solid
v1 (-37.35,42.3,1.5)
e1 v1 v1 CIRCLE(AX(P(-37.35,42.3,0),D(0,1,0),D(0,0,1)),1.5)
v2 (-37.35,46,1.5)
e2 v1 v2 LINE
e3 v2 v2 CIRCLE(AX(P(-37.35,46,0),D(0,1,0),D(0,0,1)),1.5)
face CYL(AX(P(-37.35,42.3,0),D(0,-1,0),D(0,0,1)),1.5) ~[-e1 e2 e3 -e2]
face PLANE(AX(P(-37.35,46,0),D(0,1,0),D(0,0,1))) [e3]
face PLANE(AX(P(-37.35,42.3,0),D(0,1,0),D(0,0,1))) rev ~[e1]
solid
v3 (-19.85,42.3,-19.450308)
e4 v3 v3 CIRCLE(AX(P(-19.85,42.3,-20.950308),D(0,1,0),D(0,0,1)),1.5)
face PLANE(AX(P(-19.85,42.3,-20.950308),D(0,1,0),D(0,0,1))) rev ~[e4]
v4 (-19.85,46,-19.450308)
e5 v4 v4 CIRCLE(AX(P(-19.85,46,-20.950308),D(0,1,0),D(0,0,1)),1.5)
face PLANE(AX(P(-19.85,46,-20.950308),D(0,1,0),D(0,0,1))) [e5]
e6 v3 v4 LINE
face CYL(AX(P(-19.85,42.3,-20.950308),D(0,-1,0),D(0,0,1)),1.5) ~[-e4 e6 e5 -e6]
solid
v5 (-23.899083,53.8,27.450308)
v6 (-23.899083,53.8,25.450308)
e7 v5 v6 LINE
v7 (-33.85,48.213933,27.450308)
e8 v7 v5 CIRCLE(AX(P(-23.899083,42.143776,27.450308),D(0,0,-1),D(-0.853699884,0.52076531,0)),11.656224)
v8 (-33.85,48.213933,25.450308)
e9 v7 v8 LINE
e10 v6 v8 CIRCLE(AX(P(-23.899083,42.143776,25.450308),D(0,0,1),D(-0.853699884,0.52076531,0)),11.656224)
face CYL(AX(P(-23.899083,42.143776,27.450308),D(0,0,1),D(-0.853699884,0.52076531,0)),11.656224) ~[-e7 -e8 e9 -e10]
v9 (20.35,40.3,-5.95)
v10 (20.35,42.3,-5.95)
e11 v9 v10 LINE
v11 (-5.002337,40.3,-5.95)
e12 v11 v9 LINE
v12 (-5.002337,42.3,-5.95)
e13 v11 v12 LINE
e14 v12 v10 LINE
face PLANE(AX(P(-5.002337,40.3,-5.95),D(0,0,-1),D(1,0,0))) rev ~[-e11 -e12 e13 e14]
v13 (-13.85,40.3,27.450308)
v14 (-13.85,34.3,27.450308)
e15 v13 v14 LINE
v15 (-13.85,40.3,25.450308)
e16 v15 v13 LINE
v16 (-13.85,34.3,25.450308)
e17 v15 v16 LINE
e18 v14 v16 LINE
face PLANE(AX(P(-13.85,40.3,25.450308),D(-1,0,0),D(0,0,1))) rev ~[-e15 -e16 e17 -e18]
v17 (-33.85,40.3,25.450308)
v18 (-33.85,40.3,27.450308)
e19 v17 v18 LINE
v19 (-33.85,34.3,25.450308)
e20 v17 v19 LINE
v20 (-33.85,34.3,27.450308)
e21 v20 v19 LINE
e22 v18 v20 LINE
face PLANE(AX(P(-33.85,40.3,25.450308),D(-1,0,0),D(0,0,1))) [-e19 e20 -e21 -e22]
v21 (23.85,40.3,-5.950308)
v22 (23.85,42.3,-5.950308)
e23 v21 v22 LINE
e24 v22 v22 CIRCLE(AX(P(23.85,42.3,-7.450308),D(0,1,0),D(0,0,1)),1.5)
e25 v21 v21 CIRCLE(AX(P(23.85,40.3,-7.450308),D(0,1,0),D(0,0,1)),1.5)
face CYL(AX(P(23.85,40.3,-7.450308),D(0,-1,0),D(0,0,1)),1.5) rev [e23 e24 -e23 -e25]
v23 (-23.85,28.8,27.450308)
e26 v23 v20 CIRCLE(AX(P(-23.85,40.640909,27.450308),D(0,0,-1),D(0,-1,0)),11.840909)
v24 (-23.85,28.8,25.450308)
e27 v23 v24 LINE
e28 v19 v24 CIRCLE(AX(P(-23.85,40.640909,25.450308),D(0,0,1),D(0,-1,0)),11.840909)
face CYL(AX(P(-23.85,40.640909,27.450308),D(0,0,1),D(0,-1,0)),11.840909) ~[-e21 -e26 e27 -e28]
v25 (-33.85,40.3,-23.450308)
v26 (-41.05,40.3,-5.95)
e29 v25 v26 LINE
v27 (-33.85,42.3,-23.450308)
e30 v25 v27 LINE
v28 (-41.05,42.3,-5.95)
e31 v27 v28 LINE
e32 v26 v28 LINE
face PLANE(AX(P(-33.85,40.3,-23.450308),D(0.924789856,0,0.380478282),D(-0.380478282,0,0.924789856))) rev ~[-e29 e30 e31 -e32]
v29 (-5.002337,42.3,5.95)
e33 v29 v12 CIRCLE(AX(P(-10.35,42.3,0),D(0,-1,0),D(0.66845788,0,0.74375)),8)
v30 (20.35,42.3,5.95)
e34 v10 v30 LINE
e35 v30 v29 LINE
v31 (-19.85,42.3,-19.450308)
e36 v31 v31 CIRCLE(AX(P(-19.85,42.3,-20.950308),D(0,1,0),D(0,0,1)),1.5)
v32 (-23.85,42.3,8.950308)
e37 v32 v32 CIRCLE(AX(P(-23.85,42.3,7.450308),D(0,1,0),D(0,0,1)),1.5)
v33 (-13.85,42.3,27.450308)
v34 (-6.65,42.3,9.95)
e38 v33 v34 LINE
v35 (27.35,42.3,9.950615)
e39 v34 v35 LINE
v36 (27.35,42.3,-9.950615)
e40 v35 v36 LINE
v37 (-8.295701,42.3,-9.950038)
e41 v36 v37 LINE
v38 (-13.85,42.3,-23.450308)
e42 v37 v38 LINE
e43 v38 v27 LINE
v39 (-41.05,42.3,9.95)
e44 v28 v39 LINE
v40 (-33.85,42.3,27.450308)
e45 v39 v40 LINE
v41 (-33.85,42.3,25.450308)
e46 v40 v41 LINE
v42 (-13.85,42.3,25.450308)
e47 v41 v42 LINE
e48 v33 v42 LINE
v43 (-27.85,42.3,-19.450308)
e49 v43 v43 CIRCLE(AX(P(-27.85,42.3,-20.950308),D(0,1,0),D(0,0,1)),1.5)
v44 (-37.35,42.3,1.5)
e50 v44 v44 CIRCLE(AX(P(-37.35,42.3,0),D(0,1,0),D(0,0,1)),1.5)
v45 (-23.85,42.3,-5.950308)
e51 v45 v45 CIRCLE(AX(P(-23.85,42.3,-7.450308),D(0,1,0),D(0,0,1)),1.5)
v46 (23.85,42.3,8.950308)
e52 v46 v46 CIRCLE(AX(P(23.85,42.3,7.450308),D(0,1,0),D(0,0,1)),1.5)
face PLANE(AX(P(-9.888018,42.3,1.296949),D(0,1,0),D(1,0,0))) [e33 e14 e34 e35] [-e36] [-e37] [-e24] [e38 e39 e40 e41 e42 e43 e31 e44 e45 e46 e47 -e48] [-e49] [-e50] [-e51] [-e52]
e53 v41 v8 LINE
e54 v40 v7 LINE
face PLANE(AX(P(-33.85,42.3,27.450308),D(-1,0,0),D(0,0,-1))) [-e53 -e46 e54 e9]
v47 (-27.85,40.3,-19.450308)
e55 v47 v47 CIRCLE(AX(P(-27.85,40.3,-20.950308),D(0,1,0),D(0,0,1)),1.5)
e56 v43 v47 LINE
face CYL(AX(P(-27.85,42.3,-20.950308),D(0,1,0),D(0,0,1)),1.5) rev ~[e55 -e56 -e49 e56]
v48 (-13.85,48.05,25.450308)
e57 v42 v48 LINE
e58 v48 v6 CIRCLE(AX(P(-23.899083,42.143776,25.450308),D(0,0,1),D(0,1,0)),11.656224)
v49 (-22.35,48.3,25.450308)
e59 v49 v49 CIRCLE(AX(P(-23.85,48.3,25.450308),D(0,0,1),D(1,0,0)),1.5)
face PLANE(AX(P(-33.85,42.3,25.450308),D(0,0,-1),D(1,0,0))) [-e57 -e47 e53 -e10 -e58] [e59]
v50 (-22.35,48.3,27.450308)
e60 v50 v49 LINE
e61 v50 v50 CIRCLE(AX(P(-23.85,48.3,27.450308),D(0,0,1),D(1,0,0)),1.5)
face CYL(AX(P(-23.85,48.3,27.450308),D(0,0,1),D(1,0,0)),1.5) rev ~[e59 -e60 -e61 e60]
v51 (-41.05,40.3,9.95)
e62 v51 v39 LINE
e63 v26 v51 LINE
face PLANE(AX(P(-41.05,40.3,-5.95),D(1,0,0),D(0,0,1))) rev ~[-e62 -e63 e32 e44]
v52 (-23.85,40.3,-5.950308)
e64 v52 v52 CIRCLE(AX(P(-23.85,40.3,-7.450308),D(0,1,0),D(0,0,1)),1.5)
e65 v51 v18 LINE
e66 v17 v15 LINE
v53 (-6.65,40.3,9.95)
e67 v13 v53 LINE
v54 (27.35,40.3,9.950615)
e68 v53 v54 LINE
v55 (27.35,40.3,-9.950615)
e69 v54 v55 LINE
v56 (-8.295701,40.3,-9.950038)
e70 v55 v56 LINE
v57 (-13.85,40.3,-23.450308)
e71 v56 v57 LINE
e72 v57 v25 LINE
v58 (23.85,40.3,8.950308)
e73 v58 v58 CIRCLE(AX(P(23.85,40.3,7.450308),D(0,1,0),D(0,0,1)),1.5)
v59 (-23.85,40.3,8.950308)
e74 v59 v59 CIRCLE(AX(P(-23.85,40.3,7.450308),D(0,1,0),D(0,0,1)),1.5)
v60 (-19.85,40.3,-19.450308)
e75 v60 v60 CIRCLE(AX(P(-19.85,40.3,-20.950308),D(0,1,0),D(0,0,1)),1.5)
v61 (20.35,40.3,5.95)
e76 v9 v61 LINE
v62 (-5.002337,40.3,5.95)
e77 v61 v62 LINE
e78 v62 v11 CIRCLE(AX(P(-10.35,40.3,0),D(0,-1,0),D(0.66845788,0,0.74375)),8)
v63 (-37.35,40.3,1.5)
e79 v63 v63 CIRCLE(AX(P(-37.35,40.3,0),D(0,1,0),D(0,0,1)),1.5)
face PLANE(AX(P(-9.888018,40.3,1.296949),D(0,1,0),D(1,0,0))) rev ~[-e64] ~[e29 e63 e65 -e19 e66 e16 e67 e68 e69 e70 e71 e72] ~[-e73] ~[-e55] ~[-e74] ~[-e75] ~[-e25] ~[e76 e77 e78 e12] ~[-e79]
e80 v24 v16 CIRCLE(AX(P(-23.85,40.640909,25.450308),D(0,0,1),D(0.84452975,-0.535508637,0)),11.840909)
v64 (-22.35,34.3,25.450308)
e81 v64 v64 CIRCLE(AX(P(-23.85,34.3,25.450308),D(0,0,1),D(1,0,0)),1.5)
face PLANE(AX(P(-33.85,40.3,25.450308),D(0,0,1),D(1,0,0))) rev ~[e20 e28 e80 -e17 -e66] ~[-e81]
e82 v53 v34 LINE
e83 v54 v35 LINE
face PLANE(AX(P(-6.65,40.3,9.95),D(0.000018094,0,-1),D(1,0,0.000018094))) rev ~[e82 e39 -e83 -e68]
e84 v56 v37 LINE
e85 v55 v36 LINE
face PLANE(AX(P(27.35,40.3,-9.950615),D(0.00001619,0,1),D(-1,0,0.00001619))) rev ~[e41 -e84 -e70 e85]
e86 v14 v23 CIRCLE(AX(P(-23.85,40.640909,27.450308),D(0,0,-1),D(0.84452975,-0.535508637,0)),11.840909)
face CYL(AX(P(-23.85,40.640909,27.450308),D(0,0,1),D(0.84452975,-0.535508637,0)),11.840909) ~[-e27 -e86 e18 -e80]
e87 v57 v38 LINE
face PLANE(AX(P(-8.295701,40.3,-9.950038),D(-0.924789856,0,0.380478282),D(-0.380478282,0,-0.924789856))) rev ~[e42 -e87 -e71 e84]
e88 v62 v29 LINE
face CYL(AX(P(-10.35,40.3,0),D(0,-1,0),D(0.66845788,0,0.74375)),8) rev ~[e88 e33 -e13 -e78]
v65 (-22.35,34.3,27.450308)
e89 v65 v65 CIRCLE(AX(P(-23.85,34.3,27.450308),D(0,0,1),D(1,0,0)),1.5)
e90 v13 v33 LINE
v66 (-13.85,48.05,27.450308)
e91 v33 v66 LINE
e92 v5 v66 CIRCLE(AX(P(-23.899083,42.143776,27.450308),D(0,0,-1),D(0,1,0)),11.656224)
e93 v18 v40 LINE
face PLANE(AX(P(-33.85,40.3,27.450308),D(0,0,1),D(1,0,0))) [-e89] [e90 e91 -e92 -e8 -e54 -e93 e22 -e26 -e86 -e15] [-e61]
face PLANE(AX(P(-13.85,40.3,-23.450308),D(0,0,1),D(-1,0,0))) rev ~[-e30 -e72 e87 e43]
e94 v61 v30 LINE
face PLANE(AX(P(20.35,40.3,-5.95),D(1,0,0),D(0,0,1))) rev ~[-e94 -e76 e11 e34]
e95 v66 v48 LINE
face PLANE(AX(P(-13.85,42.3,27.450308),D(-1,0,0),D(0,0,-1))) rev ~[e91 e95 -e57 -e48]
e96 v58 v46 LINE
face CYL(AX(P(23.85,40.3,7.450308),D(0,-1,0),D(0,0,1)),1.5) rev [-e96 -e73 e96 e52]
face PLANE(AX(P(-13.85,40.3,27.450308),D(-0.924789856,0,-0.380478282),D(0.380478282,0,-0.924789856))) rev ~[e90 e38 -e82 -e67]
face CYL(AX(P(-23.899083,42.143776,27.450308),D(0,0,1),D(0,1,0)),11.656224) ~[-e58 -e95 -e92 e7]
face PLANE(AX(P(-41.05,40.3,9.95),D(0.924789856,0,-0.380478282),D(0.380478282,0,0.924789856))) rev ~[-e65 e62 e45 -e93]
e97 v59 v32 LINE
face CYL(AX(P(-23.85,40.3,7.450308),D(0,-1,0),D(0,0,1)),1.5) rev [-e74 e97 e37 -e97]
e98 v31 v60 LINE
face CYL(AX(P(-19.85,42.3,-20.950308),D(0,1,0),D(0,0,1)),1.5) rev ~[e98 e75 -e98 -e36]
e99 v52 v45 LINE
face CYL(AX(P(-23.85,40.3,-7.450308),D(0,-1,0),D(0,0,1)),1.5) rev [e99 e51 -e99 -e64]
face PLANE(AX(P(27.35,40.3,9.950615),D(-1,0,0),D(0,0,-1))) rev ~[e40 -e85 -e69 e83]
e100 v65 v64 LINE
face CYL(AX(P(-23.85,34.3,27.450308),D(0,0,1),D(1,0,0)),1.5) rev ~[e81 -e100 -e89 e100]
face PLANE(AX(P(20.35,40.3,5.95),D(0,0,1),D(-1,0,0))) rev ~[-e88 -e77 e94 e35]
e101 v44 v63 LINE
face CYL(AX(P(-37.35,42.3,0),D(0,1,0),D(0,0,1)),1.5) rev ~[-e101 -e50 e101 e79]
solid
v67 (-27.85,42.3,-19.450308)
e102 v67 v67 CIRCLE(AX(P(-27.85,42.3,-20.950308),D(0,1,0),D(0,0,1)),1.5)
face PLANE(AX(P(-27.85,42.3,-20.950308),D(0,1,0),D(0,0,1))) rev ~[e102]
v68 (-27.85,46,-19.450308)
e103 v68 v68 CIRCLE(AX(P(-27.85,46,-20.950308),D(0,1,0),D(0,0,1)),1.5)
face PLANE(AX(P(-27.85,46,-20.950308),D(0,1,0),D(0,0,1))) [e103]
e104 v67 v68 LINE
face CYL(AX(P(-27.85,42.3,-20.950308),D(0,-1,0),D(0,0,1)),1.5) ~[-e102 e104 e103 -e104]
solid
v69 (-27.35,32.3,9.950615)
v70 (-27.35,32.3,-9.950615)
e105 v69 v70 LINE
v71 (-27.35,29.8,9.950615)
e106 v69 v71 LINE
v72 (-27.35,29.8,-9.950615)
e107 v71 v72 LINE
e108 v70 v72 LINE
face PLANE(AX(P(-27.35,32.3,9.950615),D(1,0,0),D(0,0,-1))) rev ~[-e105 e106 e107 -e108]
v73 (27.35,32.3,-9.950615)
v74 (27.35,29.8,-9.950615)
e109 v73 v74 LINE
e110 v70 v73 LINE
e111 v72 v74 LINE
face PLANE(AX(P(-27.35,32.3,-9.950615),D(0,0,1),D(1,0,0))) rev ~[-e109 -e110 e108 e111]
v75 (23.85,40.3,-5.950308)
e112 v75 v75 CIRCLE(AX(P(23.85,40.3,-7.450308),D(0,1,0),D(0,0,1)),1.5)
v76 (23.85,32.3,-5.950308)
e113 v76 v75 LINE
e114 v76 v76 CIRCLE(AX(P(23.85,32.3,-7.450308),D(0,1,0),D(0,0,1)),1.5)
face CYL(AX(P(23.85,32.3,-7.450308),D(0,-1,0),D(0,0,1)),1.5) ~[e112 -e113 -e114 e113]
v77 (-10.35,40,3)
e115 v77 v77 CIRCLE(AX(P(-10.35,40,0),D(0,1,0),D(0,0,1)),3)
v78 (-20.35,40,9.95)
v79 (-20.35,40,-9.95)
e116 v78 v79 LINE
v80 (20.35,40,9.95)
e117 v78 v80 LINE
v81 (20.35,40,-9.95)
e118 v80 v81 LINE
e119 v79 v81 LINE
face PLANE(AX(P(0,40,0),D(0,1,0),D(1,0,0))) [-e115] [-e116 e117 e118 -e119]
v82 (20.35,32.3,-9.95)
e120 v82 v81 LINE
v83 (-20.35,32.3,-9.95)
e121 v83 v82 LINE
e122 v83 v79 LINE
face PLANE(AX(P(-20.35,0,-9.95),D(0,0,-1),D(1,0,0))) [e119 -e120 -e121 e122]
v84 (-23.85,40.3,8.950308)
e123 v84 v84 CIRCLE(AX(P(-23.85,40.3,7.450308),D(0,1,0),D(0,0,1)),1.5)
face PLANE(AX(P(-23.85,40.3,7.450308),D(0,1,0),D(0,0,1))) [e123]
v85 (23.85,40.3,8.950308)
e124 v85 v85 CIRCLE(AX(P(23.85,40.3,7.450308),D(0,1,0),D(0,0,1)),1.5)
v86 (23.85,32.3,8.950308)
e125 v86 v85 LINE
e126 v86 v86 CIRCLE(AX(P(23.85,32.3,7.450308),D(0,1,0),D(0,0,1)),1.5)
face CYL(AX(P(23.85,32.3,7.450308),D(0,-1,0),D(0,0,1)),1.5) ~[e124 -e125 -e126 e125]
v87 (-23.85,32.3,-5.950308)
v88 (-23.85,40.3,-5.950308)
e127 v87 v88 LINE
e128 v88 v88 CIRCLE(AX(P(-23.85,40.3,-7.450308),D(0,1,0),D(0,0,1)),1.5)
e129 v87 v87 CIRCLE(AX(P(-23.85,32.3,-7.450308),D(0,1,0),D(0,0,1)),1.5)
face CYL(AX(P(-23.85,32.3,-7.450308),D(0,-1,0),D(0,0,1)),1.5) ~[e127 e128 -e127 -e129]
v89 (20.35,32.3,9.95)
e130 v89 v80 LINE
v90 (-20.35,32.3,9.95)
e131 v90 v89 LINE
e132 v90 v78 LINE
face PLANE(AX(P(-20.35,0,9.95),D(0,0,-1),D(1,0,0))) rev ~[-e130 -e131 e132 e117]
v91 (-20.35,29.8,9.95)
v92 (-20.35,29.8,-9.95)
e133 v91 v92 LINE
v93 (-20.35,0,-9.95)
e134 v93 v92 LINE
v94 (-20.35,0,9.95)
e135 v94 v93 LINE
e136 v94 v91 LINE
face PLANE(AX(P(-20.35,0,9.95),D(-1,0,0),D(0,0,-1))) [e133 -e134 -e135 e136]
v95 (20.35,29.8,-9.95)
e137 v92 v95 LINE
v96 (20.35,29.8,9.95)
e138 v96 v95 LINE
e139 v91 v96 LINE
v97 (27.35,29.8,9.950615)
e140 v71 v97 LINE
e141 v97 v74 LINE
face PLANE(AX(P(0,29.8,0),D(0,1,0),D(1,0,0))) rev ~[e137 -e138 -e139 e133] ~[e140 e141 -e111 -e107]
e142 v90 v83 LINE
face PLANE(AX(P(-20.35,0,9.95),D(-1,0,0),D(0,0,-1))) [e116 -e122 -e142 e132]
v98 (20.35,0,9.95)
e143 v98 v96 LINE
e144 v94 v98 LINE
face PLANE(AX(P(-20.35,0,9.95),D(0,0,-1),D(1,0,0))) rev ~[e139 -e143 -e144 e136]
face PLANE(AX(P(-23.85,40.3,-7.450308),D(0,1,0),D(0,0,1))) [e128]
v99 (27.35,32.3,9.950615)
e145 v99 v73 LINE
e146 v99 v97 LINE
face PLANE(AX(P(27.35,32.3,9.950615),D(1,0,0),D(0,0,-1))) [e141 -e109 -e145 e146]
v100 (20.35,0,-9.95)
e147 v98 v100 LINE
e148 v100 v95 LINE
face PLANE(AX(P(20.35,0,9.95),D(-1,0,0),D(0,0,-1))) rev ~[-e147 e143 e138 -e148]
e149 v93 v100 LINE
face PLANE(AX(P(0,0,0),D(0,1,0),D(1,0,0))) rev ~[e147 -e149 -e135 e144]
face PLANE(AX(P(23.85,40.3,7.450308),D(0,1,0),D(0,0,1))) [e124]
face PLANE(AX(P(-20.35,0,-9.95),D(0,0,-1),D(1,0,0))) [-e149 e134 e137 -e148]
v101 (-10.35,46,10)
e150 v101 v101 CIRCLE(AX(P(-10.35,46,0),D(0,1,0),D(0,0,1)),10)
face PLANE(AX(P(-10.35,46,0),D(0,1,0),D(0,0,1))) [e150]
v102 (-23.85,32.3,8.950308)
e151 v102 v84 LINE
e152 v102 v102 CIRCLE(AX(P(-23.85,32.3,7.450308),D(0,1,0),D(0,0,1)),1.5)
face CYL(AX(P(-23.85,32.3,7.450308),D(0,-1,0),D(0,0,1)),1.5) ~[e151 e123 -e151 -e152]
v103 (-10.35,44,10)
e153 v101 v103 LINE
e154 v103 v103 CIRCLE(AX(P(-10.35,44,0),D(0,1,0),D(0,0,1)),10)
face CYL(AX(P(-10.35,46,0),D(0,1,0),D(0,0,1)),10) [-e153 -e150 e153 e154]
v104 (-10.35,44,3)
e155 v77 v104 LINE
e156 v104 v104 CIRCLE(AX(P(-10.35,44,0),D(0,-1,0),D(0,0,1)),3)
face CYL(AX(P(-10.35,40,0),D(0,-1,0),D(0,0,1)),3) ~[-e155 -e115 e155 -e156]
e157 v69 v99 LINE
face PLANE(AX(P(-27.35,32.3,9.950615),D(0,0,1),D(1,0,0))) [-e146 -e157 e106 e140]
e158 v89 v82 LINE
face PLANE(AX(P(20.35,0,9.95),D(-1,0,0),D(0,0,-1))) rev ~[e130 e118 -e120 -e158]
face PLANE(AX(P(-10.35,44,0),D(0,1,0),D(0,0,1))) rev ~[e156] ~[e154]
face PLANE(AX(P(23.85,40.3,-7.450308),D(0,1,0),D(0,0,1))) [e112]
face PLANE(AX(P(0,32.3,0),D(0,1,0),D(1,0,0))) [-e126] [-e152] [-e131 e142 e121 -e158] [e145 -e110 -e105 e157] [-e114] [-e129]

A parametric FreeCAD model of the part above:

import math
import FreeCAD as App
import Part
import Sketcher

V = App.Vector


def add_polygon(sketch, points):
    """Adds a closed chain of lines whose ends are joined by coincident constraints."""
    first, n = sketch.GeometryCount, len(points)
    for a, b in zip(points, points[1:] + points[:1]):
        sketch.addGeometry(Part.LineSegment(App.Vector(*a, 0), App.Vector(*b, 0)), False)
    for i in range(n):
        sketch.addConstraint(Sketcher.Constraint("Coincident", first + i, 2, first + (i + 1) % n, 1))

doc = App.newDocument("Part")
params = doc.addObject("Spreadsheet::Sheet", "Params")
for row, (alias, value) in enumerate([
    ("sketch1_width", "40.7 mm"),
    ("sketch1_height", "19.9 mm"),
    ("pad1_length", "40 mm"),
    ("sketch2_diameter", "6 mm"),
    ("pad2_length", "6 mm"),
    ("sketch3_width", "54.7 mm"),
    ("pad3_length", "2.5 mm"),
    ("sketch4_diameter", "20 mm"),
    ("pad4_length", "2 mm"),
    ("sketch5_diameter", "3 mm"),
    ("pad5_length", "8 mm"),
    ("sketch6_diameter", "3 mm"),
    ("sketch6_radius", "8 mm"),
    ("sketch6_width", "20 mm"),
    ("sketch6_length", "34 mm"),
    ("sketch6_height", "15.9 mm"),
    ("pad6_length", "2 mm"),
    ("sketch7_width", "20 mm"),
    ("sketch7_height", "2 mm"),
    ("pad7_length", "11.5 mm"),
    ("sketch8_width", "20 mm"),
    ("sketch8_height", "2 mm"),
    ("pad8_length", "11.5 mm"),
    ("sketch9_diameter", "3 mm"),
    ("pocket1_length", "6.5 mm"),
    ("sketch10_diameter", "3 mm"),
    ("pocket2_length", "6.5 mm"),
    ("sketch11_width", "10 mm"),
    ("sketch11_height", "5.5 mm"),
    ("sketch11_height2", "5.75 mm"),
    ("pocket3_length", "6.5 mm"),
    ("sketch12_diameter", "3 mm"),
    ("pad9_length", "3.7 mm"),
    ("sketch13_diameter", "3 mm"),
    ("pad10_length", "3.7 mm"),
    ("sketch14_diameter", "3 mm"),
    ("pad11_length", "3.7 mm"),
], start=1):
    params.set(f"A{row}", alias)
    params.set(f"B{row}", "=" + value)
    params.setAlias(f"B{row}", alias)

body = doc.addObject("PartDesign::Body", "Body")

# Sketch on XZ plane
sketch1 = body.newObject("Sketcher::SketchObject", "Sketch")
sketch1.AttachmentSupport = (doc.getObject("XZ_Plane"), [""])
sketch1.MapMode = "FlatFace"
add_polygon(sketch1, [(-20, -10), (-20, 10), (20, 10), (20, -10)])  # lines 0-3
sketch1.addConstraint(Sketcher.Constraint("Vertical", 0))
sketch1.addConstraint(Sketcher.Constraint("Horizontal", 1))
sketch1.addConstraint(Sketcher.Constraint("Vertical", 2))
sketch1.addConstraint(Sketcher.Constraint("Horizontal", 3))
sketch1.addConstraint(Sketcher.Constraint("Symmetric", 0, 2, 2, 2, -1, 1))
sketch1.addConstraint(Sketcher.Constraint("DistanceX", 1, 1, 1, 2, 40.7))
sketch1.addConstraint(Sketcher.Constraint("DistanceY", 0, 1, 0, 2, 19.9))
sketch1.setExpression("Constraints[9]", "Params.sketch1_width")
sketch1.setExpression("Constraints[10]", "Params.sketch1_height")
pad1 = body.newObject("PartDesign::Pad", "Pad")
pad1.Profile = sketch1
pad1.setExpression("Length", "Params.pad1_length")
pad1.Reversed = True

# Sketch on XZ plane
sketch2 = body.newObject("Sketcher::SketchObject", "Sketch001")
sketch2.AttachmentSupport = (doc.getObject("XZ_Plane"), [""])
sketch2.MapMode = "FlatFace"
sketch2.AttachmentOffset = App.Placement(V(0, 0, -40), App.Rotation())
sketch2.addGeometry(Part.Circle(V(-10.3, 0, 0), V(0, 0, 1), 3), False)
sketch2.addConstraint(Sketcher.Constraint("PointOnObject", 0, 3, -1))
sketch2.addConstraint(Sketcher.Constraint("Diameter", 0, 6.0))
sketch2.addConstraint(Sketcher.Constraint("DistanceX", 0, 3, -1, 1, 10.35))
sketch2.setExpression("Constraints[1]", "Params.sketch2_diameter")
pad2 = body.newObject("PartDesign::Pad", "Pad001")
pad2.Profile = sketch2
pad2.setExpression("Length", "Params.pad2_length")
pad2.Reversed = True

# Sketch on XZ plane
sketch3 = body.newObject("Sketcher::SketchObject", "Sketch002")
sketch3.AttachmentSupport = (doc.getObject("XZ_Plane"), [""])
sketch3.MapMode = "FlatFace"
sketch3.AttachmentOffset = App.Placement(V(0, 0, -32.3), App.Rotation())
add_polygon(sketch3, [(-27, -10), (-27, 10), (27, 10), (27, -10)])  # lines 0-3
sketch3.addConstraint(Sketcher.Constraint("Vertical", 0))
sketch3.addConstraint(Sketcher.Constraint("Horizontal", 1))
sketch3.addConstraint(Sketcher.Constraint("Vertical", 2))
sketch3.addConstraint(Sketcher.Constraint("Horizontal", 3))
sketch3.addConstraint(Sketcher.Constraint("Symmetric", 0, 2, 2, 2, -1, 1))
sketch3.addConstraint(Sketcher.Constraint("DistanceX", 1, 1, 1, 2, 54.7))
sketch3.addConstraint(Sketcher.Constraint("DistanceY", 0, 1, 0, 2, 19.90123))
sketch3.setExpression("Constraints[9]", "Params.sketch3_width")
pad3 = body.newObject("PartDesign::Pad", "Pad002")
pad3.Profile = sketch3
pad3.setExpression("Length", "Params.pad3_length")

# Sketch on XZ plane
sketch4 = body.newObject("Sketcher::SketchObject", "Sketch003")
sketch4.AttachmentSupport = (doc.getObject("XZ_Plane"), [""])
sketch4.MapMode = "FlatFace"
sketch4.AttachmentOffset = App.Placement(V(0, 0, -46), App.Rotation())
sketch4.addGeometry(Part.Circle(V(-10, 0, 0), V(0, 0, 1), 10), False)
sketch4.addConstraint(Sketcher.Constraint("PointOnObject", 0, 3, -1))
sketch4.addConstraint(Sketcher.Constraint("Diameter", 0, 20.0))
sketch4.addConstraint(Sketcher.Constraint("DistanceX", 0, 3, -1, 1, 10.35))
sketch4.setExpression("Constraints[1]", "Params.sketch4_diameter")
pad4 = body.newObject("PartDesign::Pad", "Pad003")
pad4.Profile = sketch4
pad4.setExpression("Length", "Params.pad4_length")

# Sketch on XZ plane
sketch5 = body.newObject("Sketcher::SketchObject", "Sketch004")
sketch5.AttachmentSupport = (doc.getObject("XZ_Plane"), [""])
sketch5.MapMode = "FlatFace"
sketch5.AttachmentOffset = App.Placement(V(0, 0, -32.3), App.Rotation())
sketch5.addGeometry(Part.Circle(V(23.9, 7.5, 0), V(0, 0, 1), 1.5), False)
sketch5.addGeometry(Part.Circle(V(23.9, -7.5, 0), V(0, 0, 1), 1.5), False)
sketch5.addGeometry(Part.Circle(V(-23.9, 7.5, 0), V(0, 0, 1), 1.5), False)
sketch5.addGeometry(Part.Circle(V(-23.9, -7.5, 0), V(0, 0, 1), 1.5), False)
sketch5.addConstraint(Sketcher.Constraint("Equal", 0, 1))
sketch5.addConstraint(Sketcher.Constraint("Equal", 1, 2))
sketch5.addConstraint(Sketcher.Constraint("Equal", 2, 3))
sketch5.addConstraint(Sketcher.Constraint("Symmetric", 1, 3, 2, 3, -1, 1))
sketch5.addConstraint(Sketcher.Constraint("Symmetric", 0, 3, 3, 3, -1, 1))
sketch5.addConstraint(Sketcher.Constraint("Symmetric", 0, 3, 2, 3, -2))
sketch5.addConstraint(Sketcher.Constraint("Diameter", 0, 3.0))
sketch5.addConstraint(Sketcher.Constraint("DistanceX", 2, 3, 0, 3, 47.7))
sketch5.addConstraint(Sketcher.Constraint("DistanceY", -1, 1, 0, 3, 7.450308))
sketch5.setExpression("Constraints[6]", "Params.sketch5_diameter")
pad5 = body.newObject("PartDesign::Pad", "Pad004")
pad5.Profile = sketch5
pad5.setExpression("Length", "Params.pad5_length")
pad5.Reversed = True
body2 = doc.addObject("PartDesign::Body", "Body001")

# Sketch on XZ plane
sketch6 = body2.newObject("Sketcher::SketchObject", "Sketch005")
sketch6.AttachmentSupport = (doc.getObject("XZ_Plane001"), [""])
sketch6.MapMode = "FlatFace"
sketch6.AttachmentOffset = App.Placement(V(0, 0, -40.3), App.Rotation())
add_polygon(sketch6, [(27.4, 10), (27.4, -10), (-8.3, -10), (-13.8, -23.5), (-33.9, -23.5), (-41.1, -6), (-41.1, 9.9), (-33.9, 27.5), (-13.8, 27.5), (-6.6, 9.9)])  # lines 0-9
sketch6.addGeometry(Part.Circle(V(-23.9, 7.5, 0), V(0, 0, 1), 1.5), False)  # 10
sketch6.addGeometry(Part.Circle(V(23.9, 7.5, 0), V(0, 0, 1), 1.5), False)  # 11
sketch6.addGeometry(Part.LineSegment(V(20.4, -6, 0), V(20.4, 6, 0)), False)  # 12
sketch6.addGeometry(Part.LineSegment(V(20.4, 6, 0), V(-5, 6, 0)), False)  # 13
sketch6.addGeometry(Part.ArcOfCircle(Part.Circle(V(-10.3, 0, 0), V(0, 0, 1), 8), math.radians(48), math.radians(312)), False)  # 14
sketch6.addGeometry(Part.LineSegment(V(-5, -6, 0), V(20.4, -6, 0)), False)  # 15
sketch6.addGeometry(Part.Circle(V(-23.9, -7.5, 0), V(0, 0, 1), 1.5), False)  # 16
sketch6.addGeometry(Part.Circle(V(23.9, -7.5, 0), V(0, 0, 1), 1.5), False)  # 17
sketch6.addConstraint(Sketcher.Constraint("Coincident", 12, 2, 13, 1))
sketch6.addConstraint(Sketcher.Constraint("Coincident", 13, 2, 14, 1))
sketch6.addConstraint(Sketcher.Constraint("Coincident", 14, 2, 15, 1))
sketch6.addConstraint(Sketcher.Constraint("Coincident", 15, 2, 12, 1))
sketch6.addConstraint(Sketcher.Constraint("Vertical", 0))
sketch6.addConstraint(Sketcher.Constraint("Horizontal", 3))
sketch6.addConstraint(Sketcher.Constraint("Vertical", 5))
sketch6.addConstraint(Sketcher.Constraint("Horizontal", 7))
sketch6.addConstraint(Sketcher.Constraint("Vertical", 12))
sketch6.addConstraint(Sketcher.Constraint("Horizontal", 13))
sketch6.addConstraint(Sketcher.Constraint("Horizontal", 15))
sketch6.addConstraint(Sketcher.Constraint("Equal", 10, 11))
sketch6.addConstraint(Sketcher.Constraint("Equal", 11, 16))
sketch6.addConstraint(Sketcher.Constraint("Equal", 16, 17))
sketch6.addConstraint(Sketcher.Constraint("Symmetric", 11, 3, 16, 3, -1, 1))
sketch6.addConstraint(Sketcher.Constraint("Symmetric", 10, 3, 17, 3, -1, 1))
sketch6.addConstraint(Sketcher.Constraint("Symmetric", 10, 3, 11, 3, -2))
sketch6.addConstraint(Sketcher.Constraint("Symmetric", 13, 2, 14, 2, -1))
sketch6.addConstraint(Sketcher.Constraint("Parallel", 2, 6))
sketch6.addConstraint(Sketcher.Constraint("Parallel", 4, 8))
sketch6.addConstraint(Sketcher.Constraint("Horizontal", 5, 2, 8, 2))
sketch6.addConstraint(Sketcher.Constraint("Horizontal", 4, 2, 14, 2))
sketch6.addConstraint(Sketcher.Constraint("Vertical", 3, 2, 6, 2))
sketch6.addConstraint(Sketcher.Constraint("Vertical", 2, 2, 7, 2))
sketch6.addConstraint(Sketcher.Constraint("Equal", 4, 6))
sketch6.addConstraint(Sketcher.Constraint("Diameter", 10, 3.0))
sketch6.addConstraint(Sketcher.Constraint("Radius", 14, 8.0))
sketch6.addConstraint(Sketcher.Constraint("DistanceX", 3, 2, 3, 1, 20.0))
sketch6.addConstraint(Sketcher.Constraint("Distance", 9, 34.0))
sketch6.addConstraint(Sketcher.Constraint("DistanceY", 5, 1, 5, 2, 15.9))
sketch6.addConstraint(Sketcher.Constraint("DistanceY", 12, 1, 12, 2, 11.9))
sketch6.addConstraint(Sketcher.Constraint("DistanceX", 16, 3, 2, 2, 10.0))
sketch6.addConstraint(Sketcher.Constraint("DistanceY", 2, 2, 16, 3, 16.0))
sketch6.addConstraint(Sketcher.Constraint("DistanceX", 12, 2, 9, 2, 7.0))
sketch6.addConstraint(Sketcher.Constraint("DistanceX", 10, 3, 11, 3, 47.7))
sketch6.addConstraint(Sketcher.Constraint("DistanceX", 10, 3, 14, 3, 13.5))
sketch6.addConstraint(Sketcher.Constraint("DistanceX", 17, 3, 0, 2, 3.5))
sketch6.addConstraint(Sketcher.Constraint("Distance", 1, 35.645701))
sketch6.addConstraint(Sketcher.Constraint("DistanceY", 0, 2, 0, 1, 19.90123))
sketch6.addConstraint(Sketcher.Constraint("Distance", 4, 18.923551))
sketch6.addConstraint(Sketcher.Constraint("DistanceY", 0, 2, -1, 1, 9.950615))
sketch6.setExpression("Constraints[35]", "Params.sketch6_diameter")
sketch6.setExpression("Constraints[36]", "Params.sketch6_radius")
sketch6.setExpression("Constraints[37]", "Params.sketch6_width")
sketch6.setExpression("Constraints[38]", "Params.sketch6_length")
sketch6.setExpression("Constraints[39]", "Params.sketch6_height")
pad6 = body2.newObject("PartDesign::Pad", "Pad005")
pad6.Profile = sketch6
pad6.setExpression("Length", "Params.pad6_length")
pad6.Reversed = True

# Sketch on XZ plane
sketch7 = body2.newObject("Sketcher::SketchObject", "Sketch006")
sketch7.AttachmentSupport = (doc.getObject("XZ_Plane001"), [""])
sketch7.MapMode = "FlatFace"
sketch7.AttachmentOffset = App.Placement(V(0, 0, -42.3), App.Rotation())
add_polygon(sketch7, [(-33.9, 25.5), (-33.9, 27.5), (-13.8, 27.5), (-13.8, 25.5)])  # lines 0-3
sketch7.addConstraint(Sketcher.Constraint("Vertical", 0))
sketch7.addConstraint(Sketcher.Constraint("Horizontal", 1))
sketch7.addConstraint(Sketcher.Constraint("Vertical", 2))
sketch7.addConstraint(Sketcher.Constraint("Horizontal", 3))
sketch7.addConstraint(Sketcher.Constraint("DistanceX", 1, 1, 1, 2, 20.0))
sketch7.addConstraint(Sketcher.Constraint("DistanceY", 0, 1, 0, 2, 2.0))
sketch7.addConstraint(Sketcher.Constraint("DistanceX", 0, 2, -1, 1, 33.85))
sketch7.addConstraint(Sketcher.Constraint("DistanceY", -1, 1, 0, 2, 27.450308))
sketch7.setExpression("Constraints[8]", "Params.sketch7_width")
sketch7.setExpression("Constraints[9]", "Params.sketch7_height")
pad7 = body2.newObject("PartDesign::Pad", "Pad006")
pad7.Profile = sketch7
pad7.setExpression("Length", "Params.pad7_length")
pad7.Reversed = True

# Sketch on XZ plane
sketch8 = body2.newObject("Sketcher::SketchObject", "Sketch007")
sketch8.AttachmentSupport = (doc.getObject("XZ_Plane001"), [""])
sketch8.MapMode = "FlatFace"
sketch8.AttachmentOffset = App.Placement(V(0, 0, -40.3), App.Rotation())
add_polygon(sketch8, [(-33.9, 27.5), (-33.9, 25.5), (-13.8, 25.5), (-13.8, 27.5)])  # lines 0-3
sketch8.addConstraint(Sketcher.Constraint("Vertical", 0))
sketch8.addConstraint(Sketcher.Constraint("Horizontal", 1))
sketch8.addConstraint(Sketcher.Constraint("Vertical", 2))
sketch8.addConstraint(Sketcher.Constraint("Horizontal", 3))
sketch8.addConstraint(Sketcher.Constraint("DistanceX", 1, 1, 1, 2, 20.0))
sketch8.addConstraint(Sketcher.Constraint("DistanceY", 0, 2, 0, 1, 2.0))
sketch8.addConstraint(Sketcher.Constraint("DistanceX", 0, 2, -1, 1, 33.85))
sketch8.addConstraint(Sketcher.Constraint("DistanceY", -1, 1, 0, 2, 25.450308))
sketch8.setExpression("Constraints[8]", "Params.sketch8_width")
sketch8.setExpression("Constraints[9]", "Params.sketch8_height")
pad8 = body2.newObject("PartDesign::Pad", "Pad007")
pad8.Profile = sketch8
pad8.setExpression("Length", "Params.pad8_length")

# Sketch on XY plane
sketch9 = body2.newObject("Sketcher::SketchObject", "Sketch008")
sketch9.AttachmentSupport = (doc.getObject("XY_Plane001"), [""])
sketch9.MapMode = "FlatFace"
sketch9.AttachmentOffset = App.Placement(V(0, 0, 27.450308), App.Rotation())
sketch9.addGeometry(Part.Circle(V(-23.9, 48.3, 0), V(0, 0, 1), 1.5), False)
sketch9.addGeometry(Part.Circle(V(-23.9, 34.3, 0), V(0, 0, 1), 1.5), False)
sketch9.addConstraint(Sketcher.Constraint("Equal", 0, 1))
sketch9.addConstraint(Sketcher.Constraint("Vertical", 0, 3, 1, 3))
sketch9.addConstraint(Sketcher.Constraint("Diameter", 0, 3.0))
sketch9.addConstraint(Sketcher.Constraint("DistanceY", 1, 3, 0, 3, 14.0))
sketch9.addConstraint(Sketcher.Constraint("DistanceY", -1, 1, 0, 3, 48.3))
sketch9.addConstraint(Sketcher.Constraint("DistanceX", 0, 3, -1, 1, 23.85))
sketch9.setExpression("Constraints[2]", "Params.sketch9_diameter")
pocket1 = body2.newObject("PartDesign::Pocket", "Pocket")
pocket1.Profile = sketch9
pocket1.setExpression("Length", "Params.pocket1_length")

# Sketch on XZ plane
sketch10 = body2.newObject("Sketcher::SketchObject", "Sketch009")
sketch10.AttachmentSupport = (doc.getObject("XZ_Plane001"), [""])
sketch10.MapMode = "FlatFace"
sketch10.AttachmentOffset = App.Placement(V(0, 0, -42.3), App.Rotation())
sketch10.addGeometry(Part.Circle(V(-37.4, 0, 0), V(0, 0, 1), 1.5), False)
sketch10.addGeometry(Part.Circle(V(-27.9, -21, 0), V(0, 0, 1), 1.5), False)
sketch10.addGeometry(Part.Circle(V(-19.9, -21, 0), V(0, 0, 1), 1.5), False)
sketch10.addConstraint(Sketcher.Constraint("Equal", 0, 1))
sketch10.addConstraint(Sketcher.Constraint("Equal", 1, 2))
sketch10.addConstraint(Sketcher.Constraint("PointOnObject", 0, 3, -1))
sketch10.addConstraint(Sketcher.Constraint("Horizontal", 1, 3, 2, 3))
sketch10.addConstraint(Sketcher.Constraint("Diameter", 0, 3.0))
sketch10.addConstraint(Sketcher.Constraint("DistanceX", 1, 3, 2, 3, 8.0))
sketch10.addConstraint(Sketcher.Constraint("DistanceX", 0, 3, 1, 3, 9.5))
sketch10.addConstraint(Sketcher.Constraint("DistanceX", 0, 3, -1, 1, 37.35))
sketch10.addConstraint(Sketcher.Constraint("DistanceY", 1, 3, -1, 1, 20.950308))
sketch10.setExpression("Constraints[4]", "Params.sketch10_diameter")
pocket2 = body2.newObject("PartDesign::Pocket", "Pocket001")
pocket2.Profile = sketch10
pocket2.setExpression("Length", "Params.pocket2_length")
pocket2.Reversed = True

# Sketch on XY plane
sketch11 = body2.newObject("Sketcher::SketchObject", "Sketch010")
sketch11.AttachmentSupport = (doc.getObject("XY_Plane001"), [""])
sketch11.MapMode = "FlatFace"
sketch11.AttachmentOffset = App.Placement(V(0, 0, 27.450308), App.Rotation())
sketch11.addGeometry(Part.ArcOfCircle(Part.Circle(V(-24, 41, 0), V(0, 0, 1), 12), math.radians(-148), math.radians(-90)), False)
sketch11.addGeometry(Part.LineSegment(V(-34, 34, 0), V(-34, 29, 0)), False)
sketch11.addGeometry(Part.LineSegment(V(-34, 29, 0), V(-24, 29, 0)), False)
sketch11.addGeometry(Part.ArcOfCircle(Part.Circle(V(-24, 41, 0), V(0, 0, 1), 12), math.radians(-90), math.radians(-32)), False)
sketch11.addGeometry(Part.LineSegment(V(-24, 29, 0), V(-14, 29, 0)), False)
sketch11.addGeometry(Part.LineSegment(V(-14, 29, 0), V(-14, 34, 0)), False)
sketch11.addGeometry(Part.LineSegment(V(-34, 54, 0), V(-34, 48, 0)), False)
sketch11.addGeometry(Part.ArcOfCircle(Part.Circle(V(-24, 42, 0), V(0, 0, 1), 12), math.radians(90), math.radians(149)), False)
sketch11.addGeometry(Part.LineSegment(V(-24, 54, 0), V(-34, 54, 0)), False)
sketch11.addGeometry(Part.LineSegment(V(-14, 54, 0), V(-24, 54, 0)), False)
sketch11.addGeometry(Part.ArcOfCircle(Part.Circle(V(-24, 42, 0), V(0, 0, 1), 12), math.radians(30), math.radians(90)), False)
sketch11.addGeometry(Part.LineSegment(V(-14, 48, 0), V(-14, 54, 0)), False)
sketch11.addConstraint(Sketcher.Constraint("Coincident", 0, 1, 1, 1))
sketch11.addConstraint(Sketcher.Constraint("Coincident", 1, 2, 2, 1))
sketch11.addConstraint(Sketcher.Constraint("Tangent", 2, 2, 0, 2))
sketch11.addConstraint(Sketcher.Constraint("Tangent", 3, 1, 4, 1))
sketch11.addConstraint(Sketcher.Constraint("Coincident", 4, 2, 5, 1))
sketch11.addConstraint(Sketcher.Constraint("Coincident", 5, 2, 3, 2))
sketch11.addConstraint(Sketcher.Constraint("Coincident", 6, 2, 7, 2))
sketch11.addConstraint(Sketcher.Constraint("Tangent", 7, 1, 8, 1))
sketch11.addConstraint(Sketcher.Constraint("Coincident", 8, 2, 6, 1))
sketch11.addConstraint(Sketcher.Constraint("Tangent", 9, 2, 10, 2))
sketch11.addConstraint(Sketcher.Constraint("Coincident", 10, 1, 11, 1))
sketch11.addConstraint(Sketcher.Constraint("Coincident", 11, 2, 9, 1))
sketch11.addConstraint(Sketcher.Constraint("Vertical", 1))
sketch11.addConstraint(Sketcher.Constraint("Horizontal", 2))
sketch11.addConstraint(Sketcher.Constraint("Horizontal", 4))
sketch11.addConstraint(Sketcher.Constraint("Vertical", 5))
sketch11.addConstraint(Sketcher.Constraint("Vertical", 6))
sketch11.addConstraint(Sketcher.Constraint("Horizontal", 8))
sketch11.addConstraint(Sketcher.Constraint("Horizontal", 9))
sketch11.addConstraint(Sketcher.Constraint("Vertical", 11))
sketch11.addConstraint(Sketcher.Constraint("Coincident", 3, 3, 0, 3))
sketch11.addConstraint(Sketcher.Constraint("Coincident", 10, 3, 7, 3))
sketch11.addConstraint(Sketcher.Constraint("Equal", 0, 3))
sketch11.addConstraint(Sketcher.Constraint("Equal", 7, 10))
sketch11.addConstraint(Sketcher.Constraint("Horizontal", 0, 1, 5, 2))
sketch11.addConstraint(Sketcher.Constraint("Vertical", 1, 2, 6, 2))
sketch11.addConstraint(Sketcher.Constraint("Vertical", 5, 2, 10, 1))
sketch11.addConstraint(Sketcher.Constraint("DistanceX", 2, 1, 2, 2, 10.0))
sketch11.addConstraint(Sketcher.Constraint("DistanceY", 1, 2, 1, 1, 5.5))
sketch11.addConstraint(Sketcher.Constraint("DistanceY", 11, 1, 11, 2, 5.75))
sketch11.addConstraint(Sketcher.Constraint("DistanceY", -1, 1, 0, 1, 34.3))
sketch11.addConstraint(Sketcher.Constraint("DistanceY", -1, 1, 7, 1, 53.8))
sketch11.addConstraint(Sketcher.Constraint("DistanceX", 0, 3, -1, 1, 23.85))
sketch11.addConstraint(Sketcher.Constraint("Radius", 7, 11.656224))
sketch11.setExpression("Constraints[27]", "Params.sketch11_width")
sketch11.setExpression("Constraints[28]", "Params.sketch11_height")
sketch11.setExpression("Constraints[29]", "Params.sketch11_height2")
pocket3 = body2.newObject("PartDesign::Pocket", "Pocket002")
pocket3.Profile = sketch11
pocket3.setExpression("Length", "Params.pocket3_length")
body3 = doc.addObject("PartDesign::Body", "Body002")

# Sketch on XZ plane
sketch12 = body3.newObject("Sketcher::SketchObject", "Sketch011")
sketch12.AttachmentSupport = (doc.getObject("XZ_Plane002"), [""])
sketch12.MapMode = "FlatFace"
sketch12.AttachmentOffset = App.Placement(V(0, 0, -42.3), App.Rotation())
sketch12.addGeometry(Part.Circle(V(-27.9, -21, 0), V(0, 0, 1), 1.5), False)
sketch12.addConstraint(Sketcher.Constraint("Diameter", 0, 3.0))
sketch12.addConstraint(Sketcher.Constraint("DistanceX", 0, 3, -1, 1, 27.85))
sketch12.addConstraint(Sketcher.Constraint("DistanceY", 0, 3, -1, 1, 20.950308))
sketch12.setExpression("Constraints[0]", "Params.sketch12_diameter")
pad9 = body3.newObject("PartDesign::Pad", "Pad008")
pad9.Profile = sketch12
pad9.setExpression("Length", "Params.pad9_length")
pad9.Reversed = True
body4 = doc.addObject("PartDesign::Body", "Body003")

# Sketch on XZ plane
sketch13 = body4.newObject("Sketcher::SketchObject", "Sketch012")
sketch13.AttachmentSupport = (doc.getObject("XZ_Plane003"), [""])
sketch13.MapMode = "FlatFace"
sketch13.AttachmentOffset = App.Placement(V(0, 0, -42.3), App.Rotation())
sketch13.addGeometry(Part.Circle(V(-19.9, -21, 0), V(0, 0, 1), 1.5), False)
sketch13.addConstraint(Sketcher.Constraint("Diameter", 0, 3.0))
sketch13.addConstraint(Sketcher.Constraint("DistanceX", 0, 3, -1, 1, 19.85))
sketch13.addConstraint(Sketcher.Constraint("DistanceY", 0, 3, -1, 1, 20.950308))
sketch13.setExpression("Constraints[0]", "Params.sketch13_diameter")
pad10 = body4.newObject("PartDesign::Pad", "Pad009")
pad10.Profile = sketch13
pad10.setExpression("Length", "Params.pad10_length")
pad10.Reversed = True
body5 = doc.addObject("PartDesign::Body", "Body004")

# Sketch on XZ plane
sketch14 = body5.newObject("Sketcher::SketchObject", "Sketch013")
sketch14.AttachmentSupport = (doc.getObject("XZ_Plane004"), [""])
sketch14.MapMode = "FlatFace"
sketch14.AttachmentOffset = App.Placement(V(0, 0, -42.3), App.Rotation())
sketch14.addGeometry(Part.Circle(V(-37.4, 0, 0), V(0, 0, 1), 1.5), False)
sketch14.addConstraint(Sketcher.Constraint("PointOnObject", 0, 3, -1))
sketch14.addConstraint(Sketcher.Constraint("Diameter", 0, 3.0))
sketch14.addConstraint(Sketcher.Constraint("DistanceX", 0, 3, -1, 1, 37.35))
sketch14.setExpression("Constraints[1]", "Params.sketch14_diameter")
pad11 = body5.newObject("PartDesign::Pad", "Pad010")
pad11.Profile = sketch14
pad11.setExpression("Length", "Params.pad11_length")
pad11.Reversed = True

doc.recompute()
